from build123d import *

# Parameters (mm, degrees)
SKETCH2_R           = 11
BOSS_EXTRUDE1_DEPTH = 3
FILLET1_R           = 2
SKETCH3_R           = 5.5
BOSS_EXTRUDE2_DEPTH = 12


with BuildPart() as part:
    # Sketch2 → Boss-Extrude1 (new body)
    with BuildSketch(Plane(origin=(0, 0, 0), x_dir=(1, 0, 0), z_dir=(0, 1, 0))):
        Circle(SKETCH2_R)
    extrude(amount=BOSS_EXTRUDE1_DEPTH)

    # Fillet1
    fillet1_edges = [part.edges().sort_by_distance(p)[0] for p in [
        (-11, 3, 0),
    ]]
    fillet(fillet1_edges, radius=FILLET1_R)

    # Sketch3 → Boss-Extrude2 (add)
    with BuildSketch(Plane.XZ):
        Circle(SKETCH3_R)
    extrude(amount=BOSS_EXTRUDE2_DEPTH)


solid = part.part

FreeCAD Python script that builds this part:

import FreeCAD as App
import Part
import Sketcher
Q = App.Units.Quantity


def edges_at(feature, points):
    """Names of the edges that pass closest to the given points."""
    edges = feature.Shape.Edges
    near = lambda p: min(range(len(edges)), key=lambda i: edges[i].distToShape(Part.Vertex(*p))[0])
    return sorted({f"Edge{near(p) + 1}" for p in points})

doc = App.newDocument("Part")
body = doc.addObject("PartDesign::Body", "Body")

sketch1 = body.newObject("Sketcher::SketchObject", "Sketch")
sketch1.AttachmentSupport = (doc.getObject("XZ_Plane"), [""])
sketch1.MapMode = "FlatFace"
sketch1.addGeometry(Part.Circle(App.Vector(0, 0, 0), App.Vector(0, 0, 1), 11), False)
sketch1.addConstraint([
    Sketcher.Constraint("Coincident", 0, 3, -1, 1),
    Sketcher.Constraint("Diameter", 0, Q("22 mm")),
])
pad1 = body.newObject("PartDesign::Pad", "Pad")
pad1.Profile = sketch1
pad1.Length = 3
pad1.Reversed = True
doc.recompute()

fillet = body.newObject("PartDesign::Fillet", "Fillet")
fillet.Base = (pad1, edges_at(pad1, [(-11, 3, 0)]))
fillet.Radius = 2

sketch2 = body.newObject("Sketcher::SketchObject", "Sketch001")
sketch2.AttachmentSupport = (doc.getObject("XZ_Plane"), [""])
sketch2.MapMode = "FlatFace"
sketch2.addGeometry(Part.Circle(App.Vector(0, 0, 0), App.Vector(0, 0, 1), 6), False)
sketch2.addConstraint([
    Sketcher.Constraint("Coincident", 0, 3, -1, 1),
    Sketcher.Constraint("Diameter", 0, Q("11 mm")),
])
pad2 = body.newObject("PartDesign::Pad", "Pad001")
pad2.Profile = sketch2
pad2.Length = 12

doc.recompute()
